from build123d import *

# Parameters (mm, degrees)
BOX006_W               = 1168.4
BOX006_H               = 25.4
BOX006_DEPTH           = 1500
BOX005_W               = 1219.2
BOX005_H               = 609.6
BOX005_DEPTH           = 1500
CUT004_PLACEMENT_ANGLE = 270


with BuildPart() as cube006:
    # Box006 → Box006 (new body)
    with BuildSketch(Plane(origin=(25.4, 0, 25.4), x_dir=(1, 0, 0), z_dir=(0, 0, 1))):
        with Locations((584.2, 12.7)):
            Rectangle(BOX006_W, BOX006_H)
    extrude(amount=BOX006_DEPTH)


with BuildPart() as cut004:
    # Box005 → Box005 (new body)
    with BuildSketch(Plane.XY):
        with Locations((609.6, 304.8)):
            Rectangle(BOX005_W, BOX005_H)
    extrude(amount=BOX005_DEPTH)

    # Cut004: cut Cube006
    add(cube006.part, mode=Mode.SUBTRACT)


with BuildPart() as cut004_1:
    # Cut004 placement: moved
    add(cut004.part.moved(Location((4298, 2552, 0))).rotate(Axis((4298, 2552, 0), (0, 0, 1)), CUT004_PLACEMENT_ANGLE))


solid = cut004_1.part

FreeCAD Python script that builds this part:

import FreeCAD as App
import Part
import Sketcher
Q = App.Units.Quantity


def add_polygon(sketch, points):
    """Adds a closed chain of lines whose ends are joined by coincident constraints."""
    first, n = sketch.GeometryCount, len(points)
    for a, b in zip(points, points[1:] + points[:1]):
        sketch.addGeometry(Part.LineSegment(App.Vector(*a, 0), App.Vector(*b, 0)), False)
    for i in range(n):
        sketch.addConstraint(Sketcher.Constraint("Coincident", first + i, 2, first + (i + 1) % n, 1))

doc = App.newDocument("Part")
body = doc.addObject("PartDesign::Body", "Body")

# Sketch on XY plane
sketch1 = body.newObject("Sketcher::SketchObject", "Sketch")
sketch1.AttachmentSupport = (doc.getObject("XY_Plane"), [""])
sketch1.MapMode = "FlatFace"
sketch1.AttachmentOffset = App.Placement(App.Vector(0, 0, 1 * 25.4), App.Rotation())
add_polygon(sketch1, [(25, 25), (25, 0), (1194, 0), (1194, 25)])  # lines 0-3
sketch1.addConstraint([
    Sketcher.Constraint("Vertical", 0),
    Sketcher.Constraint("Horizontal", 1),
    Sketcher.Constraint("Vertical", 2),
    Sketcher.Constraint("Horizontal", 3),
    Sketcher.Constraint("PointOnObject", 0, 2, -1),
    Sketcher.Constraint("DistanceX", 1, 1, 1, 2, Q("46 in")),
    Sketcher.Constraint("DistanceY", 0, 2, 0, 1, Q("1 in")),
    Sketcher.Constraint("DistanceX", -1, 1, 0, 2, Q("1 in")),
])
pad1 = body.newObject("PartDesign::Pad", "Pad")
pad1.Profile = sketch1
pad1.Length = 1500
body2 = doc.addObject("PartDesign::Body", "Body001")

# Sketch on XY plane
sketch2 = body2.newObject("Sketcher::SketchObject", "Sketch001")
sketch2.AttachmentSupport = (doc.getObject("XY_Plane001"), [""])
sketch2.MapMode = "FlatFace"
add_polygon(sketch2, [(0, 610), (0, 0), (1219, 0), (1219, 610)])  # lines 0-3
sketch2.addConstraint([
    Sketcher.Constraint("Vertical", 0),
    Sketcher.Constraint("Horizontal", 1),
    Sketcher.Constraint("Vertical", 2),
    Sketcher.Constraint("Horizontal", 3),
    Sketcher.Constraint("Coincident", 0, 2, -1, 1),
    Sketcher.Constraint("DistanceX", 1, 1, 1, 2, Q("48 in")),
    Sketcher.Constraint("DistanceY", 0, 2, 0, 1, Q("24 in")),
])
pad2 = body2.newObject("PartDesign::Pad", "Pad001")
pad2.Profile = sketch2
pad2.Length = 1500
doc.recompute()

boolean = body2.newObject("PartDesign::Boolean", "Boolean")
boolean.Type = "Cut"
boolean.addObjects([body])
body3 = doc.addObject("PartDesign::Body", "Body002")
doc.recompute()

body2.Placement = App.Placement(App.Vector(4298, 2552, 0), App.Rotation(App.Vector(0, 0, 1), 270))
boolean2 = body3.newObject("PartDesign::Boolean", "Boolean001")
boolean2.Type = "Fuse"
boolean2.addObjects([body2])

doc.recompute()
